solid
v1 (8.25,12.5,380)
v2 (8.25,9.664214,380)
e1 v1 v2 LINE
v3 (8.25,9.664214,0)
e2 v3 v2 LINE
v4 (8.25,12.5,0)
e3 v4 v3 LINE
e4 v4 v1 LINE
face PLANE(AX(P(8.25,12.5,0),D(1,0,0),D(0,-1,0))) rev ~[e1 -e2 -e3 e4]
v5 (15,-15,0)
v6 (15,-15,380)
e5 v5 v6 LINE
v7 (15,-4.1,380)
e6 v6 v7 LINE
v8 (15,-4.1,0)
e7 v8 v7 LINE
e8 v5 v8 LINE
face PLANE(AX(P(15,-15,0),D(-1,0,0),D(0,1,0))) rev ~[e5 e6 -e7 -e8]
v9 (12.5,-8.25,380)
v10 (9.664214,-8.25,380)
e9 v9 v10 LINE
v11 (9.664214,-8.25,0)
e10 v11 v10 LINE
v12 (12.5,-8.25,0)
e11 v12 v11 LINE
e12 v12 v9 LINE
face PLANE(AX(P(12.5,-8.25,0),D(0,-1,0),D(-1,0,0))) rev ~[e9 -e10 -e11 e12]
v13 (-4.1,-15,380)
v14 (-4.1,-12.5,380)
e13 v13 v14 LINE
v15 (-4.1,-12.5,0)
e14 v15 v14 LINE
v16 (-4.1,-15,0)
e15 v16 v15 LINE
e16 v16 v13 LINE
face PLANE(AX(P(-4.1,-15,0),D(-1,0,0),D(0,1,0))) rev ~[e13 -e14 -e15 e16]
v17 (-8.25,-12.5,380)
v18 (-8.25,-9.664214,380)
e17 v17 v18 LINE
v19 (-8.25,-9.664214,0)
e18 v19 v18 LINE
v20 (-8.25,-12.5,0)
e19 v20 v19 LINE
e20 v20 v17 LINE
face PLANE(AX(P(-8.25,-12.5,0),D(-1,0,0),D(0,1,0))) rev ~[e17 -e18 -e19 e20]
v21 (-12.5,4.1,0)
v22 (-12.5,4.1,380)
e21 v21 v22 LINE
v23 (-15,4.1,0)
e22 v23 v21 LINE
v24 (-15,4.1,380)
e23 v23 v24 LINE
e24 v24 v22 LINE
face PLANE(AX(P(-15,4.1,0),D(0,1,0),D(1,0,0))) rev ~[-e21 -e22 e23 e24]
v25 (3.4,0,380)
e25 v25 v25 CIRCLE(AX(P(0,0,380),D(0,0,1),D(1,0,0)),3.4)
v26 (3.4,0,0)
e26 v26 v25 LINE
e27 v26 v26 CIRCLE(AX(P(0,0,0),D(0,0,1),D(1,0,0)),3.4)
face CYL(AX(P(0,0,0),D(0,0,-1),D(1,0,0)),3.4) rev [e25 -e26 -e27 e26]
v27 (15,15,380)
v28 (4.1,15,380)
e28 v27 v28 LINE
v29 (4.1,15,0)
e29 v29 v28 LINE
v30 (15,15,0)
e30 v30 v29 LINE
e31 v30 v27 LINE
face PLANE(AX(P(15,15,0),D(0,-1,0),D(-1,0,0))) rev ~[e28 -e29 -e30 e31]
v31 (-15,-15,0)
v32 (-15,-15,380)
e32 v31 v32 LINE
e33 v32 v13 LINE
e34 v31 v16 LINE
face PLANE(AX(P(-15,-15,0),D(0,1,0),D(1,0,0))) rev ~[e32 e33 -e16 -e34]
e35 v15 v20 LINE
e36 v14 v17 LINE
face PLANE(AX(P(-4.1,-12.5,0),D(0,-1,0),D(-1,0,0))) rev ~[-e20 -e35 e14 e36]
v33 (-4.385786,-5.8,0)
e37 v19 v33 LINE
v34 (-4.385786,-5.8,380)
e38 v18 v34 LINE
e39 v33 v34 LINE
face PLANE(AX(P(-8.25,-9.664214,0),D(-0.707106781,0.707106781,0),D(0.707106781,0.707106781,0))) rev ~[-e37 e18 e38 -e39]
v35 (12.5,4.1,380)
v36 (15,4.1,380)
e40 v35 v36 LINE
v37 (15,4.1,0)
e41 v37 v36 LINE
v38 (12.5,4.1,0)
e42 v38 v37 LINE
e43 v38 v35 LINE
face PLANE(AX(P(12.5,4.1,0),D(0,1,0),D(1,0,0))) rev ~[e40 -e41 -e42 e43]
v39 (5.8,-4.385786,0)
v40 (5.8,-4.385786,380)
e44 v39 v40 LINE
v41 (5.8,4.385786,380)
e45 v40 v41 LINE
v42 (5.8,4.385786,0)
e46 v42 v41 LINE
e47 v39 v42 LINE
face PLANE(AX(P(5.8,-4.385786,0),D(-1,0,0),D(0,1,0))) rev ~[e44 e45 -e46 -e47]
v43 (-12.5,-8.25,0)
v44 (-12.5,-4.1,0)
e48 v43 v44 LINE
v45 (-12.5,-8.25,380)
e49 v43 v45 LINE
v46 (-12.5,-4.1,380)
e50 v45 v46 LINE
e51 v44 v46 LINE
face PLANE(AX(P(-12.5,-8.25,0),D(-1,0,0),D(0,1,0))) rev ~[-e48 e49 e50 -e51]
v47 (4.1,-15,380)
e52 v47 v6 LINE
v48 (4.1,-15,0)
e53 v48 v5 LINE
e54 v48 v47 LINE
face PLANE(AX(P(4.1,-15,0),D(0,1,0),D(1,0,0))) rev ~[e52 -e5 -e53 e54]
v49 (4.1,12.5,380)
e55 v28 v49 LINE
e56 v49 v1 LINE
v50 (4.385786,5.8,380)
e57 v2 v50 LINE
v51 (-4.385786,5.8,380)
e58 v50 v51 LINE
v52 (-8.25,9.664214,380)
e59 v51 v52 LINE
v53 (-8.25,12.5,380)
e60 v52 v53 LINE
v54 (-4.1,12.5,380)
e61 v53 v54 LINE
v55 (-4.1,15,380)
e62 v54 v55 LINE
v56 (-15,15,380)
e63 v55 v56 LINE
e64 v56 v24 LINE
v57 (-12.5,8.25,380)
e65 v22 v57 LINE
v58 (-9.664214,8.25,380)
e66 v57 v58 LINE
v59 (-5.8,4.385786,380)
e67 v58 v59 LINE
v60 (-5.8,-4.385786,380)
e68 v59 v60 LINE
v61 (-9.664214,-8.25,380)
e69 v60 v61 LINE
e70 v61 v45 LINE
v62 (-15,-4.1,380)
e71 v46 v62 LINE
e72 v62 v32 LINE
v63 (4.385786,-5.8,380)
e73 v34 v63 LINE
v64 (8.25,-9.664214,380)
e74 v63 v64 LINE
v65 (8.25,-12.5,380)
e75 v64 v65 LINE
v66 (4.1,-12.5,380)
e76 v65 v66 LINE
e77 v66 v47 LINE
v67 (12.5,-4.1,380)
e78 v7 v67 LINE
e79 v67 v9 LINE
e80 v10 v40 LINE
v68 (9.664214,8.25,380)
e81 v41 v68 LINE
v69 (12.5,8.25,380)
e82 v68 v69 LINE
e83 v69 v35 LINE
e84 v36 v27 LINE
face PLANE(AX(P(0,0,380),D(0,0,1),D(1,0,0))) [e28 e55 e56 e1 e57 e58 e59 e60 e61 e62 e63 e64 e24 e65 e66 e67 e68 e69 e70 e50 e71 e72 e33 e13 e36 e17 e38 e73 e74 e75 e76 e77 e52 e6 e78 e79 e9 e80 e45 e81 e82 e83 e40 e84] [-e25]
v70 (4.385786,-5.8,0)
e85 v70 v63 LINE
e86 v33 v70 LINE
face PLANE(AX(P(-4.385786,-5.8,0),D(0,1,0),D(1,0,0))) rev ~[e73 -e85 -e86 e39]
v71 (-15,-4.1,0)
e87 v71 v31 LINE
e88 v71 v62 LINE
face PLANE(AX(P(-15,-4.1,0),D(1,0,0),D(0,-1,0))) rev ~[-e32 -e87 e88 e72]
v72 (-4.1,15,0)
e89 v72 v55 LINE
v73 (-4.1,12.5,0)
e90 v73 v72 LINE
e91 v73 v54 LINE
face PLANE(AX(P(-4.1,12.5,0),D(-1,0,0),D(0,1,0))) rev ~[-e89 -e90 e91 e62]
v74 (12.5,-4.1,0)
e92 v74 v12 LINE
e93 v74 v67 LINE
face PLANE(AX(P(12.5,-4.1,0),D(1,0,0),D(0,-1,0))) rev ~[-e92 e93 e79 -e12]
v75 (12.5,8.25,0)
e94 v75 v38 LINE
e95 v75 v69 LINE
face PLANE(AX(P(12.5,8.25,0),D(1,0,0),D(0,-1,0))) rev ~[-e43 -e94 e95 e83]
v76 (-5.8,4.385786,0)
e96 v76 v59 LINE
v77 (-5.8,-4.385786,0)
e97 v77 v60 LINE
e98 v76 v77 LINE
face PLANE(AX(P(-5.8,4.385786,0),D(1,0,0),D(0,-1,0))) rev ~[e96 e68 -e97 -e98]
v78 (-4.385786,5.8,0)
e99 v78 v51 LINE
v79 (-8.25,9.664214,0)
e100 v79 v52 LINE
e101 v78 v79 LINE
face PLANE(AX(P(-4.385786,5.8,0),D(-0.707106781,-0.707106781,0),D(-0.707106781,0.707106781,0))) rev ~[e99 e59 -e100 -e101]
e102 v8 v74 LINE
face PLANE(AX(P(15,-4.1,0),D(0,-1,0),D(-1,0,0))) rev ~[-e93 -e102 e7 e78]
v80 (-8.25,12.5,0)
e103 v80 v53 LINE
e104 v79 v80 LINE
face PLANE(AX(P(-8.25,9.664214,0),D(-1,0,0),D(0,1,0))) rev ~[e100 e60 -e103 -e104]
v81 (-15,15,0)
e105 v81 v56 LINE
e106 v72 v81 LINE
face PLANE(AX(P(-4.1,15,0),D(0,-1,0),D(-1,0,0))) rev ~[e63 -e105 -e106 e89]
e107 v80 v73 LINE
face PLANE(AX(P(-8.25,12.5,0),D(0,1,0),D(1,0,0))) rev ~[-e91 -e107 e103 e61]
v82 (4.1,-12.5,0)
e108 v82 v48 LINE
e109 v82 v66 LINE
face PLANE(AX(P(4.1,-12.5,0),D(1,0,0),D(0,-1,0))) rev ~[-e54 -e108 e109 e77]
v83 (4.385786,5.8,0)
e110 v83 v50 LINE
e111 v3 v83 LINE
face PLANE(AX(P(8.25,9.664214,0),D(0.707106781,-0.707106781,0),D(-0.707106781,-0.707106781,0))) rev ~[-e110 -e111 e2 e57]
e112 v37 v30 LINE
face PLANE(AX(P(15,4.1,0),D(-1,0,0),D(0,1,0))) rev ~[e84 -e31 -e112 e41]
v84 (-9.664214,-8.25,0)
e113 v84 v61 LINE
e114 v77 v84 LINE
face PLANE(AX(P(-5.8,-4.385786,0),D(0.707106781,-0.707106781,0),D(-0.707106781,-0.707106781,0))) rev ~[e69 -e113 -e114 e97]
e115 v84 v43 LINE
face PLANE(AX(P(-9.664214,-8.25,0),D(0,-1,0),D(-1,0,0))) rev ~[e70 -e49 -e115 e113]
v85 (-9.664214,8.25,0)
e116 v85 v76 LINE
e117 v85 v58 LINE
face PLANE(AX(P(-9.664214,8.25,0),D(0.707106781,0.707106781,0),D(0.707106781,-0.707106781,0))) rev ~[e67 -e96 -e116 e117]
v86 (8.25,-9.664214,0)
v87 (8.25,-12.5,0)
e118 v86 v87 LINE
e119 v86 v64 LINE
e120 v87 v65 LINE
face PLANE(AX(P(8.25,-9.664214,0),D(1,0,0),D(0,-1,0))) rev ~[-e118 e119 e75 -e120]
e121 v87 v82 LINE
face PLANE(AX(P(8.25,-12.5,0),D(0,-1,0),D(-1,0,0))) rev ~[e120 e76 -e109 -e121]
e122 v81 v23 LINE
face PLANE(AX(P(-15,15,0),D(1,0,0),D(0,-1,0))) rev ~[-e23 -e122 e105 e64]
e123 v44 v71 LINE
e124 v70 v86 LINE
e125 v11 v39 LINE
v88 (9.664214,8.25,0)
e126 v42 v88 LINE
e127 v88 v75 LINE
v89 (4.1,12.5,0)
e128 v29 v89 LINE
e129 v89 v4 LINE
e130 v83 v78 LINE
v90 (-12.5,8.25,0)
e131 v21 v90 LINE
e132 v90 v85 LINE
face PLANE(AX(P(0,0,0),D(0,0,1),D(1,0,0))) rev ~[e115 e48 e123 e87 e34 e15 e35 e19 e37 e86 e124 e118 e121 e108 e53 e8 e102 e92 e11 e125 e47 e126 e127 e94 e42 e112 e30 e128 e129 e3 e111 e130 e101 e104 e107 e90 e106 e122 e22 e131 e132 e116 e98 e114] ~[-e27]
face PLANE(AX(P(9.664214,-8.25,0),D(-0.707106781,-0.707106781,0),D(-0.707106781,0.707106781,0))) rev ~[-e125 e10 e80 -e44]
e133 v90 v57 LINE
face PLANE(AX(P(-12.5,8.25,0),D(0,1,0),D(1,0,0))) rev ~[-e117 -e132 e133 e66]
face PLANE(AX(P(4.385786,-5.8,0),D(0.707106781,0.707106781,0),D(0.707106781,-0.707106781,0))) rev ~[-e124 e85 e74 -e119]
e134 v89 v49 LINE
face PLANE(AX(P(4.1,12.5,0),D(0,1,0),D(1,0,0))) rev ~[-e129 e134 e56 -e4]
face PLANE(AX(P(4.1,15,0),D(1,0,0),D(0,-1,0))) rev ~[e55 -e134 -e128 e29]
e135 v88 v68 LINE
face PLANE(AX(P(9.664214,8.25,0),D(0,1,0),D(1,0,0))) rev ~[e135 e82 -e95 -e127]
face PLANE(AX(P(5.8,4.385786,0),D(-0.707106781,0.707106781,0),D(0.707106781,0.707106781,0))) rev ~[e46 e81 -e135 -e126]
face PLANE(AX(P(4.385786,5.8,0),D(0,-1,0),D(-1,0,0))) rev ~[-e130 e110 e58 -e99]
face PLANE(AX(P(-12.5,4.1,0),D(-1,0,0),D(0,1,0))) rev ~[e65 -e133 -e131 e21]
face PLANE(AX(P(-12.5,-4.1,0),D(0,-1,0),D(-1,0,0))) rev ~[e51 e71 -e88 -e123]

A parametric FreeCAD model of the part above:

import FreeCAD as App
import Part
import Sketcher
from FreeCAD import Vector
Q = App.Units.Quantity

doc = App.newDocument("Part")
body = doc.addObject("PartDesign::Body", "Body")

# Sketch on XY plane
sketch1 = doc.addObject("Sketcher::SketchObject", "Sketch")
body.addObject(sketch1)
sketch1.AttachmentSupport = (doc.XY_Plane, [""])
sketch1.MapMode = "FlatFace"
sketch1.addGeometry([
    Part.LineSegment(Vector(-4.1, 12.5, 0), Vector(-4.1, 15, 0)),  # 0
    Part.LineSegment(Vector(-4.1, 15, 0), Vector(-15, 15, 0)),  # 1
    Part.LineSegment(Vector(-15, 15, 0), Vector(-15, 4.1, 0)),  # 2
    Part.LineSegment(Vector(-15, 4.1, 0), Vector(-12.5, 4.1, 0)),  # 3
    Part.LineSegment(Vector(-12.5, 4.1, 0), Vector(-12.5, 8.25, 0)),  # 4
    Part.LineSegment(Vector(-12.5, 8.25, 0), Vector(-9.664214, 8.25, 0)),  # 5
    Part.LineSegment(Vector(-9.664214, 8.25, 0), Vector(-5.8, 4.385786, 0)),  # 6
    Part.LineSegment(Vector(-5.8, 4.385786, 0), Vector(-5.8, -4.385786, 0)),  # 7
    Part.LineSegment(Vector(-5.8, -4.385786, 0), Vector(-9.664214, -8.25, 0)),  # 8
    Part.LineSegment(Vector(-9.664214, -8.25, 0), Vector(-12.5, -8.25, 0)),  # 9
    Part.LineSegment(Vector(-12.5, -8.25, 0), Vector(-12.5, -4.1, 0)),  # 10
    Part.LineSegment(Vector(-12.5, -4.1, 0), Vector(-15, -4.1, 0)),  # 11
    Part.LineSegment(Vector(-15, -4.1, 0), Vector(-15, -15, 0)),  # 12
    Part.LineSegment(Vector(-15, -15, 0), Vector(-4.1, -15, 0)),  # 13
    Part.LineSegment(Vector(-4.1, -15, 0), Vector(-4.1, -12.5, 0)),  # 14
    Part.LineSegment(Vector(-4.1, -12.5, 0), Vector(-8.25, -12.5, 0)),  # 15
    Part.LineSegment(Vector(-8.25, -12.5, 0), Vector(-8.25, -9.664214, 0)),  # 16
    Part.LineSegment(Vector(-8.25, -9.664214, 0), Vector(-4.385786, -5.8, 0)),  # 17
    Part.LineSegment(Vector(-4.385786, -5.8, 0), Vector(4.385786, -5.8, 0)),  # 18
    Part.LineSegment(Vector(4.385786, -5.8, 0), Vector(8.25, -9.664214, 0)),  # 19
    Part.LineSegment(Vector(8.25, -9.664214, 0), Vector(8.25, -12.5, 0)),  # 20
    Part.LineSegment(Vector(8.25, -12.5, 0), Vector(4.1, -12.5, 0)),  # 21
    Part.LineSegment(Vector(4.1, -12.5, 0), Vector(4.1, -15, 0)),  # 22
    Part.LineSegment(Vector(4.1, -15, 0), Vector(15, -15, 0)),  # 23
    Part.LineSegment(Vector(15, -15, 0), Vector(15, -4.1, 0)),  # 24
    Part.LineSegment(Vector(15, -4.1, 0), Vector(12.5, -4.1, 0)),  # 25
    Part.LineSegment(Vector(12.5, -4.1, 0), Vector(12.5, -8.25, 0)),  # 26
    Part.LineSegment(Vector(12.5, -8.25, 0), Vector(9.664214, -8.25, 0)),  # 27
    Part.LineSegment(Vector(9.664214, -8.25, 0), Vector(5.8, -4.385786, 0)),  # 28
    Part.LineSegment(Vector(5.8, -4.385786, 0), Vector(5.8, 4.385786, 0)),  # 29
    Part.LineSegment(Vector(5.8, 4.385786, 0), Vector(9.664214, 8.25, 0)),  # 30
    Part.LineSegment(Vector(9.664214, 8.25, 0), Vector(12.5, 8.25, 0)),  # 31
    Part.LineSegment(Vector(12.5, 8.25, 0), Vector(12.5, 4.1, 0)),  # 32
    Part.LineSegment(Vector(12.5, 4.1, 0), Vector(15, 4.1, 0)),  # 33
    Part.LineSegment(Vector(15, 4.1, 0), Vector(15, 15, 0)),  # 34
    Part.LineSegment(Vector(15, 15, 0), Vector(4.1, 15, 0)),  # 35
    Part.LineSegment(Vector(4.1, 15, 0), Vector(4.1, 12.5, 0)),  # 36
    Part.LineSegment(Vector(4.1, 12.5, 0), Vector(8.25, 12.5, 0)),  # 37
    Part.LineSegment(Vector(8.25, 12.5, 0), Vector(8.25, 9.664214, 0)),  # 38
    Part.LineSegment(Vector(8.25, 9.664214, 0), Vector(4.385786, 5.8, 0)),  # 39
    Part.LineSegment(Vector(4.385786, 5.8, 0), Vector(-4.385786, 5.8, 0)),  # 40
    Part.LineSegment(Vector(-4.385786, 5.8, 0), Vector(-8.25, 9.664214, 0)),  # 41
    Part.LineSegment(Vector(-8.25, 9.664214, 0), Vector(-8.25, 12.5, 0)),  # 42
    Part.LineSegment(Vector(-8.25, 12.5, 0), Vector(-4.1, 12.5, 0)),  # 43
    Part.Circle(Vector(0, 0, 0), Vector(0, 0, 1), 3.4),  # 44
], False)
sketch1.addConstraint([
    Sketcher.Constraint("Coincident", 0, 2, 1, 1),
    Sketcher.Constraint("Coincident", 1, 2, 2, 1),
    Sketcher.Constraint("Coincident", 2, 2, 3, 1),
    Sketcher.Constraint("Coincident", 3, 2, 4, 1),
    Sketcher.Constraint("Coincident", 4, 2, 5, 1),
    Sketcher.Constraint("Coincident", 5, 2, 6, 1),
    Sketcher.Constraint("Coincident", 6, 2, 7, 1),
    Sketcher.Constraint("Coincident", 7, 2, 8, 1),
    Sketcher.Constraint("Coincident", 8, 2, 9, 1),
    Sketcher.Constraint("Coincident", 9, 2, 10, 1),
    Sketcher.Constraint("Coincident", 10, 2, 11, 1),
    Sketcher.Constraint("Coincident", 11, 2, 12, 1),
    Sketcher.Constraint("Coincident", 12, 2, 13, 1),
    Sketcher.Constraint("Coincident", 13, 2, 14, 1),
    Sketcher.Constraint("Coincident", 14, 2, 15, 1),
    Sketcher.Constraint("Coincident", 15, 2, 16, 1),
    Sketcher.Constraint("Coincident", 16, 2, 17, 1),
    Sketcher.Constraint("Coincident", 17, 2, 18, 1),
    Sketcher.Constraint("Coincident", 18, 2, 19, 1),
    Sketcher.Constraint("Coincident", 19, 2, 20, 1),
    Sketcher.Constraint("Coincident", 20, 2, 21, 1),
    Sketcher.Constraint("Coincident", 21, 2, 22, 1),
    Sketcher.Constraint("Coincident", 22, 2, 23, 1),
    Sketcher.Constraint("Coincident", 23, 2, 24, 1),
    Sketcher.Constraint("Coincident", 24, 2, 25, 1),
    Sketcher.Constraint("Coincident", 25, 2, 26, 1),
    Sketcher.Constraint("Coincident", 26, 2, 27, 1),
    Sketcher.Constraint("Coincident", 27, 2, 28, 1),
    Sketcher.Constraint("Coincident", 28, 2, 29, 1),
    Sketcher.Constraint("Coincident", 29, 2, 30, 1),
    Sketcher.Constraint("Coincident", 30, 2, 31, 1),
    Sketcher.Constraint("Coincident", 31, 2, 32, 1),
    Sketcher.Constraint("Coincident", 32, 2, 33, 1),
    Sketcher.Constraint("Coincident", 33, 2, 34, 1),
    Sketcher.Constraint("Coincident", 34, 2, 35, 1),
    Sketcher.Constraint("Coincident", 35, 2, 36, 1),
    Sketcher.Constraint("Coincident", 36, 2, 37, 1),
    Sketcher.Constraint("Coincident", 37, 2, 38, 1),
    Sketcher.Constraint("Coincident", 38, 2, 39, 1),
    Sketcher.Constraint("Coincident", 39, 2, 40, 1),
    Sketcher.Constraint("Coincident", 40, 2, 41, 1),
    Sketcher.Constraint("Coincident", 41, 2, 42, 1),
    Sketcher.Constraint("Coincident", 42, 2, 43, 1),
    Sketcher.Constraint("Coincident", 43, 2, 0, 1),
    Sketcher.Constraint("Vertical", 0),
    Sketcher.Constraint("Horizontal", 1),
    Sketcher.Constraint("Vertical", 2),
    Sketcher.Constraint("Horizontal", 3),
    Sketcher.Constraint("Vertical", 4),
    Sketcher.Constraint("Horizontal", 5),
    Sketcher.Constraint("Vertical", 7),
    Sketcher.Constraint("Horizontal", 9),
    Sketcher.Constraint("Vertical", 10),
    Sketcher.Constraint("Horizontal", 11),
    Sketcher.Constraint("Vertical", 12),
    Sketcher.Constraint("Horizontal", 13),
    Sketcher.Constraint("Vertical", 14),
    Sketcher.Constraint("Horizontal", 15),
    Sketcher.Constraint("Vertical", 16),
    Sketcher.Constraint("Horizontal", 18),
    Sketcher.Constraint("Vertical", 20),
    Sketcher.Constraint("Horizontal", 21),
    Sketcher.Constraint("Vertical", 22),
    Sketcher.Constraint("Horizontal", 23),
    Sketcher.Constraint("Vertical", 24),
    Sketcher.Constraint("Horizontal", 25),
    Sketcher.Constraint("Vertical", 26),
    Sketcher.Constraint("Horizontal", 27),
    Sketcher.Constraint("Vertical", 29),
    Sketcher.Constraint("Horizontal", 31),
    Sketcher.Constraint("Vertical", 32),
    Sketcher.Constraint("Horizontal", 33),
    Sketcher.Constraint("Vertical", 34),
    Sketcher.Constraint("Horizontal", 35),
    Sketcher.Constraint("Vertical", 36),
    Sketcher.Constraint("Horizontal", 37),
    Sketcher.Constraint("Vertical", 38),
    Sketcher.Constraint("Horizontal", 40),
    Sketcher.Constraint("Vertical", 42),
    Sketcher.Constraint("Horizontal", 43),
    Sketcher.Constraint("Coincident", 44, 3, -1, 1),
    Sketcher.Constraint("Symmetric", 0, 2, 22, 2, -1, 1),
    Sketcher.Constraint("Symmetric", 2, 2, 24, 2, -1, 1),
    Sketcher.Constraint("Symmetric", 4, 2, 26, 2, -1, 1),
    Sketcher.Constraint("Symmetric", 6, 2, 28, 2, -1, 1),
    Sketcher.Constraint("Symmetric", 8, 2, 30, 2, -1, 1),
    Sketcher.Constraint("Symmetric", 10, 2, 32, 2, -1, 1),
    Sketcher.Constraint("Symmetric", 12, 2, 34, 2, -1, 1),
    Sketcher.Constraint("Symmetric", 14, 2, 36, 2, -1, 1),
    Sketcher.Constraint("Symmetric", 16, 2, 38, 2, -1, 1),
    Sketcher.Constraint("Symmetric", 17, 2, 39, 2, -1, 1),
    Sketcher.Constraint("Symmetric", 19, 2, 41, 2, -1, 1),
    Sketcher.Constraint("Symmetric", 16, 2, 19, 2, -2),
    Sketcher.Constraint("Symmetric", 14, 2, 21, 2, -2),
    Sketcher.Constraint("Symmetric", 12, 2, 23, 2, -2),
    Sketcher.Constraint("Symmetric", 10, 2, 25, 2, -2),
    Sketcher.Constraint("Symmetric", 8, 2, 27, 2, -2),
    Sketcher.Constraint("Perpendicular", 6, 8),
    Sketcher.Constraint("Parallel", 8, 17),
    Sketcher.Constraint("Perpendicular", 17, 19),
    Sketcher.Constraint("Parallel", 19, 28),
    Sketcher.Constraint("Perpendicular", 28, 30),
    Sketcher.Constraint("Perpendicular", 39, 41),
    Sketcher.Constraint("Horizontal", 7, 2, 28, 2),
    Sketcher.Constraint("Horizontal", 37, 2, 42, 2),
    Sketcher.Constraint("Equal", 33, 0),
    Sketcher.Constraint("Equal", 35, 2),
    Sketcher.Constraint("Equal", 43, 4),
    Sketcher.Constraint("Equal", 40, 7),
    Sketcher.Constraint("Equal", 31, 16),
    Sketcher.Constraint("Equal", 8, 17),
    Sketcher.Constraint("Diameter", 44, Q("6.8 mm")),
    Sketcher.Constraint("DistanceX", 1, 2, 1, 1, Q("10.9 mm")),
    Sketcher.Constraint("DistanceX", 3, 1, 3, 2, Q("2.5 mm")),
    Sketcher.Constraint("DistanceY", -1, 1, 0, 2, Q("15 mm")),
    Sketcher.Constraint("DistanceX", 15, 2, 15, 1, Q("4.15 mm")),
    Sketcher.Constraint("DistanceX", 6, 2, -1, 1, Q("5.8 mm")),
    Sketcher.Constraint("DistanceX", 5, 1, 5, 2, Q("2.835786 mm")),
])
pad1 = doc.addObject("PartDesign::Pad", "Pad")
body.addObject(pad1)
pad1.Profile = sketch1
pad1.Length = 380

doc.recompute()
